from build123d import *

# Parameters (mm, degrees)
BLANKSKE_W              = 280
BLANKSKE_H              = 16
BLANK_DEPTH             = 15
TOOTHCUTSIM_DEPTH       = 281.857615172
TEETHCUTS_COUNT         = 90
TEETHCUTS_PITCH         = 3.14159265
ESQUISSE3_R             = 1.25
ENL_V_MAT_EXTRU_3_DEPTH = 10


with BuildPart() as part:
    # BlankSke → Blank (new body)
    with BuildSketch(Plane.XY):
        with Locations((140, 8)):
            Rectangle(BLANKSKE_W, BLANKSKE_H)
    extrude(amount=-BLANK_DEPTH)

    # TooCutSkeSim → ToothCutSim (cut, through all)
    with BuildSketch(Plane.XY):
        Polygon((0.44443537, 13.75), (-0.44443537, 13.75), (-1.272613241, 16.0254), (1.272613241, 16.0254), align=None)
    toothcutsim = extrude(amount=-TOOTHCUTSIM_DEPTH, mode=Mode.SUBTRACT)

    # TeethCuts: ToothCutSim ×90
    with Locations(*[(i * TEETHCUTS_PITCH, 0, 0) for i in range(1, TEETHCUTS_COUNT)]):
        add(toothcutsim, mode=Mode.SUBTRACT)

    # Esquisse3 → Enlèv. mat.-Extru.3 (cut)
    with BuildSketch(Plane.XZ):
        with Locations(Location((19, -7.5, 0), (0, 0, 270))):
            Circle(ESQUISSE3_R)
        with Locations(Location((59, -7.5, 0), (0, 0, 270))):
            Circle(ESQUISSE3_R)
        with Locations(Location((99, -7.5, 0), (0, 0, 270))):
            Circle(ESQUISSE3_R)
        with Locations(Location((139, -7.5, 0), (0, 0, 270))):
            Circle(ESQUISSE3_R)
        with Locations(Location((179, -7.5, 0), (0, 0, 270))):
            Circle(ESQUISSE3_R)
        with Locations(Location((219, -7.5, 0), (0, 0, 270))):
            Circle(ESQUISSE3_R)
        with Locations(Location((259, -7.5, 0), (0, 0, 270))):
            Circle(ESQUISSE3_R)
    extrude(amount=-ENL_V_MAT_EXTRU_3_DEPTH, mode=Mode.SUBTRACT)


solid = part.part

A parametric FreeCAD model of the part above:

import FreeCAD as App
import Part
import Sketcher

V = App.Vector
Q = App.Units.Quantity

doc = App.newDocument("Part")
params = doc.addObject("Spreadsheet::Sheet", "Params")
for row, (alias, value) in enumerate([
    ("sketch1_width", "280 mm"),
    ("sketch1_height", "16 mm"),
    ("pad1_length", "15 mm"),
    ("linearpattern_pitch", "3.141593 mm"),
    ("sketch3_diameter", "2.5 mm"),
    ("pocket2_length", "10 mm"),
], start=1):
    params.set(f"A{row}", alias)
    params.set(f"B{row}", "=" + value)
    params.setAlias(f"B{row}", alias)

body = doc.addObject("PartDesign::Body", "Body")

# Sketch on XY plane
sketch1 = body.newObject("Sketcher::SketchObject", "Sketch")
sketch1.AttachmentSupport = (doc.getObject("XY_Plane"), [""])
sketch1.MapMode = "FlatFace"
sketch1.addGeometry([
    Part.LineSegment(V(0, 16, 0), V(0, 0, 0)),
    Part.LineSegment(V(0, 0, 0), V(280, 0, 0)),
    Part.LineSegment(V(280, 0, 0), V(280, 16, 0)),
    Part.LineSegment(V(280, 16, 0), V(0, 16, 0)),
], False)
sketch1.addConstraint([
    Sketcher.Constraint("Coincident", 0, 2, 1, 1),
    Sketcher.Constraint("Coincident", 1, 2, 2, 1),
    Sketcher.Constraint("Coincident", 2, 2, 3, 1),
    Sketcher.Constraint("Coincident", 3, 2, 0, 1),
    Sketcher.Constraint("Vertical", 0),
    Sketcher.Constraint("Horizontal", 1),
    Sketcher.Constraint("Vertical", 2),
    Sketcher.Constraint("Horizontal", 3),
    Sketcher.Constraint("Coincident", 0, 2, -1, 1),
    Sketcher.Constraint("DistanceX", 1, 1, 1, 2, Q("280 mm")),
    Sketcher.Constraint("DistanceY", 0, 2, 0, 1, Q("16 mm")),
])
sketch1.setExpression("Constraints[9]", "Params.sketch1_width")
sketch1.setExpression("Constraints[10]", "Params.sketch1_height")
pad1 = body.newObject("PartDesign::Pad", "Pad")
pad1.Profile = sketch1
pad1.setExpression("Length", "Params.pad1_length")
pad1.Reversed = True

# Sketch on XY plane
sketch2 = body.newObject("Sketcher::SketchObject", "Sketch001")
sketch2.AttachmentSupport = (doc.getObject("XY_Plane"), [""])
sketch2.MapMode = "FlatFace"
sketch2.addGeometry([
    Part.LineSegment(V(-0.444435, 13.75, 0), V(0.444435, 13.75, 0)),
    Part.LineSegment(V(0.444435, 13.75, 0), V(1.272613, 16.0254, 0)),
    Part.LineSegment(V(1.272613, 16.0254, 0), V(-1.272613, 16.0254, 0)),
    Part.LineSegment(V(-1.272613, 16.0254, 0), V(-0.444435, 13.75, 0)),
], False)
sketch2.addConstraint([
    Sketcher.Constraint("Coincident", 0, 2, 1, 1),
    Sketcher.Constraint("Coincident", 1, 2, 2, 1),
    Sketcher.Constraint("Coincident", 2, 2, 3, 1),
    Sketcher.Constraint("Coincident", 3, 2, 0, 1),
    Sketcher.Constraint("Horizontal", 0),
    Sketcher.Constraint("Horizontal", 2),
    Sketcher.Constraint("Equal", 1, 3),
    Sketcher.Constraint("Angle", 1, Q("70 deg")),
    Sketcher.Constraint("DistanceY", -1, 1, 0, 2, Q("13.75 mm")),
    Sketcher.Constraint("DistanceX", 0, 1, 0, 2, Q("0.888871 mm")),
    Sketcher.Constraint("DistanceY", -1, 1, 1, 2, Q("16.0254 mm")),
    Sketcher.Constraint("DistanceX", -1, 1, 0, 2, Q("0.444435 mm")),
])
pocket1 = body.newObject("PartDesign::Pocket", "Pocket")
pocket1.Profile = sketch2
pocket1.Type = "ThroughAll"
doc.recompute()

linearpattern = body.newObject("PartDesign::LinearPattern", "LinearPattern")
linearpattern.Originals = [pocket1]
linearpattern.Direction = (doc.getObject("X_Axis"), [""])
linearpattern.Mode = "offset"
linearpattern.setExpression("Offset", "Params.linearpattern_pitch")
linearpattern.Occurrences = 90
body.Tip = linearpattern

# Sketch on XZ plane
sketch3 = body.newObject("Sketcher::SketchObject", "Sketch002")
sketch3.AttachmentSupport = (doc.getObject("XZ_Plane"), [""])
sketch3.MapMode = "FlatFace"
sketch3.addGeometry([
    Part.Circle(V(19, -7.5, 0), V(0, 0, 1), 1.25),  # 0
    Part.Circle(V(59, -7.5, 0), V(0, 0, 1), 1.25),  # 1
    Part.Circle(V(99, -7.5, 0), V(0, 0, 1), 1.25),  # 2
    Part.Circle(V(139, -7.5, 0), V(0, 0, 1), 1.25),  # 3
    Part.Circle(V(179, -7.5, 0), V(0, 0, 1), 1.25),  # 4
    Part.Circle(V(219, -7.5, 0), V(0, 0, 1), 1.25),  # 5
    Part.Circle(V(259, -7.5, 0), V(0, 0, 1), 1.25),  # 6
], False)
sketch3.addConstraint([
    Sketcher.Constraint("Equal", 0, 1),
    Sketcher.Constraint("Equal", 1, 2),
    Sketcher.Constraint("Equal", 2, 3),
    Sketcher.Constraint("Equal", 3, 4),
    Sketcher.Constraint("Equal", 4, 5),
    Sketcher.Constraint("Equal", 5, 6),
    Sketcher.Constraint("Horizontal", 0, 3, 1, 3),
    Sketcher.Constraint("Horizontal", 1, 3, 2, 3),
    Sketcher.Constraint("Horizontal", 2, 3, 3, 3),
    Sketcher.Constraint("Horizontal", 3, 3, 4, 3),
    Sketcher.Constraint("Horizontal", 4, 3, 5, 3),
    Sketcher.Constraint("Horizontal", 5, 3, 6, 3),
    Sketcher.Constraint("Diameter", 0, Q("2.5 mm")),
    Sketcher.Constraint("DistanceX", -1, 1, 0, 3, Q("19 mm")),
    Sketcher.Constraint("DistanceX", -1, 1, 1, 3, Q("59 mm")),
    Sketcher.Constraint("DistanceX", -1, 1, 2, 3, Q("99 mm")),
    Sketcher.Constraint("DistanceX", -1, 1, 3, 3, Q("139 mm")),
    Sketcher.Constraint("DistanceX", -1, 1, 4, 3, Q("179 mm")),
    Sketcher.Constraint("DistanceX", -1, 1, 5, 3, Q("219 mm")),
    Sketcher.Constraint("DistanceX", -1, 1, 6, 3, Q("259 mm")),
    Sketcher.Constraint("DistanceY", 0, 3, -1, 1, Q("7.5 mm")),
])
sketch3.setExpression("Constraints[12]", "Params.sketch3_diameter")
pocket2 = body.newObject("PartDesign::Pocket", "Pocket001")
pocket2.Profile = sketch3
pocket2.setExpression("Length", "Params.pocket2_length")

doc.recompute()
